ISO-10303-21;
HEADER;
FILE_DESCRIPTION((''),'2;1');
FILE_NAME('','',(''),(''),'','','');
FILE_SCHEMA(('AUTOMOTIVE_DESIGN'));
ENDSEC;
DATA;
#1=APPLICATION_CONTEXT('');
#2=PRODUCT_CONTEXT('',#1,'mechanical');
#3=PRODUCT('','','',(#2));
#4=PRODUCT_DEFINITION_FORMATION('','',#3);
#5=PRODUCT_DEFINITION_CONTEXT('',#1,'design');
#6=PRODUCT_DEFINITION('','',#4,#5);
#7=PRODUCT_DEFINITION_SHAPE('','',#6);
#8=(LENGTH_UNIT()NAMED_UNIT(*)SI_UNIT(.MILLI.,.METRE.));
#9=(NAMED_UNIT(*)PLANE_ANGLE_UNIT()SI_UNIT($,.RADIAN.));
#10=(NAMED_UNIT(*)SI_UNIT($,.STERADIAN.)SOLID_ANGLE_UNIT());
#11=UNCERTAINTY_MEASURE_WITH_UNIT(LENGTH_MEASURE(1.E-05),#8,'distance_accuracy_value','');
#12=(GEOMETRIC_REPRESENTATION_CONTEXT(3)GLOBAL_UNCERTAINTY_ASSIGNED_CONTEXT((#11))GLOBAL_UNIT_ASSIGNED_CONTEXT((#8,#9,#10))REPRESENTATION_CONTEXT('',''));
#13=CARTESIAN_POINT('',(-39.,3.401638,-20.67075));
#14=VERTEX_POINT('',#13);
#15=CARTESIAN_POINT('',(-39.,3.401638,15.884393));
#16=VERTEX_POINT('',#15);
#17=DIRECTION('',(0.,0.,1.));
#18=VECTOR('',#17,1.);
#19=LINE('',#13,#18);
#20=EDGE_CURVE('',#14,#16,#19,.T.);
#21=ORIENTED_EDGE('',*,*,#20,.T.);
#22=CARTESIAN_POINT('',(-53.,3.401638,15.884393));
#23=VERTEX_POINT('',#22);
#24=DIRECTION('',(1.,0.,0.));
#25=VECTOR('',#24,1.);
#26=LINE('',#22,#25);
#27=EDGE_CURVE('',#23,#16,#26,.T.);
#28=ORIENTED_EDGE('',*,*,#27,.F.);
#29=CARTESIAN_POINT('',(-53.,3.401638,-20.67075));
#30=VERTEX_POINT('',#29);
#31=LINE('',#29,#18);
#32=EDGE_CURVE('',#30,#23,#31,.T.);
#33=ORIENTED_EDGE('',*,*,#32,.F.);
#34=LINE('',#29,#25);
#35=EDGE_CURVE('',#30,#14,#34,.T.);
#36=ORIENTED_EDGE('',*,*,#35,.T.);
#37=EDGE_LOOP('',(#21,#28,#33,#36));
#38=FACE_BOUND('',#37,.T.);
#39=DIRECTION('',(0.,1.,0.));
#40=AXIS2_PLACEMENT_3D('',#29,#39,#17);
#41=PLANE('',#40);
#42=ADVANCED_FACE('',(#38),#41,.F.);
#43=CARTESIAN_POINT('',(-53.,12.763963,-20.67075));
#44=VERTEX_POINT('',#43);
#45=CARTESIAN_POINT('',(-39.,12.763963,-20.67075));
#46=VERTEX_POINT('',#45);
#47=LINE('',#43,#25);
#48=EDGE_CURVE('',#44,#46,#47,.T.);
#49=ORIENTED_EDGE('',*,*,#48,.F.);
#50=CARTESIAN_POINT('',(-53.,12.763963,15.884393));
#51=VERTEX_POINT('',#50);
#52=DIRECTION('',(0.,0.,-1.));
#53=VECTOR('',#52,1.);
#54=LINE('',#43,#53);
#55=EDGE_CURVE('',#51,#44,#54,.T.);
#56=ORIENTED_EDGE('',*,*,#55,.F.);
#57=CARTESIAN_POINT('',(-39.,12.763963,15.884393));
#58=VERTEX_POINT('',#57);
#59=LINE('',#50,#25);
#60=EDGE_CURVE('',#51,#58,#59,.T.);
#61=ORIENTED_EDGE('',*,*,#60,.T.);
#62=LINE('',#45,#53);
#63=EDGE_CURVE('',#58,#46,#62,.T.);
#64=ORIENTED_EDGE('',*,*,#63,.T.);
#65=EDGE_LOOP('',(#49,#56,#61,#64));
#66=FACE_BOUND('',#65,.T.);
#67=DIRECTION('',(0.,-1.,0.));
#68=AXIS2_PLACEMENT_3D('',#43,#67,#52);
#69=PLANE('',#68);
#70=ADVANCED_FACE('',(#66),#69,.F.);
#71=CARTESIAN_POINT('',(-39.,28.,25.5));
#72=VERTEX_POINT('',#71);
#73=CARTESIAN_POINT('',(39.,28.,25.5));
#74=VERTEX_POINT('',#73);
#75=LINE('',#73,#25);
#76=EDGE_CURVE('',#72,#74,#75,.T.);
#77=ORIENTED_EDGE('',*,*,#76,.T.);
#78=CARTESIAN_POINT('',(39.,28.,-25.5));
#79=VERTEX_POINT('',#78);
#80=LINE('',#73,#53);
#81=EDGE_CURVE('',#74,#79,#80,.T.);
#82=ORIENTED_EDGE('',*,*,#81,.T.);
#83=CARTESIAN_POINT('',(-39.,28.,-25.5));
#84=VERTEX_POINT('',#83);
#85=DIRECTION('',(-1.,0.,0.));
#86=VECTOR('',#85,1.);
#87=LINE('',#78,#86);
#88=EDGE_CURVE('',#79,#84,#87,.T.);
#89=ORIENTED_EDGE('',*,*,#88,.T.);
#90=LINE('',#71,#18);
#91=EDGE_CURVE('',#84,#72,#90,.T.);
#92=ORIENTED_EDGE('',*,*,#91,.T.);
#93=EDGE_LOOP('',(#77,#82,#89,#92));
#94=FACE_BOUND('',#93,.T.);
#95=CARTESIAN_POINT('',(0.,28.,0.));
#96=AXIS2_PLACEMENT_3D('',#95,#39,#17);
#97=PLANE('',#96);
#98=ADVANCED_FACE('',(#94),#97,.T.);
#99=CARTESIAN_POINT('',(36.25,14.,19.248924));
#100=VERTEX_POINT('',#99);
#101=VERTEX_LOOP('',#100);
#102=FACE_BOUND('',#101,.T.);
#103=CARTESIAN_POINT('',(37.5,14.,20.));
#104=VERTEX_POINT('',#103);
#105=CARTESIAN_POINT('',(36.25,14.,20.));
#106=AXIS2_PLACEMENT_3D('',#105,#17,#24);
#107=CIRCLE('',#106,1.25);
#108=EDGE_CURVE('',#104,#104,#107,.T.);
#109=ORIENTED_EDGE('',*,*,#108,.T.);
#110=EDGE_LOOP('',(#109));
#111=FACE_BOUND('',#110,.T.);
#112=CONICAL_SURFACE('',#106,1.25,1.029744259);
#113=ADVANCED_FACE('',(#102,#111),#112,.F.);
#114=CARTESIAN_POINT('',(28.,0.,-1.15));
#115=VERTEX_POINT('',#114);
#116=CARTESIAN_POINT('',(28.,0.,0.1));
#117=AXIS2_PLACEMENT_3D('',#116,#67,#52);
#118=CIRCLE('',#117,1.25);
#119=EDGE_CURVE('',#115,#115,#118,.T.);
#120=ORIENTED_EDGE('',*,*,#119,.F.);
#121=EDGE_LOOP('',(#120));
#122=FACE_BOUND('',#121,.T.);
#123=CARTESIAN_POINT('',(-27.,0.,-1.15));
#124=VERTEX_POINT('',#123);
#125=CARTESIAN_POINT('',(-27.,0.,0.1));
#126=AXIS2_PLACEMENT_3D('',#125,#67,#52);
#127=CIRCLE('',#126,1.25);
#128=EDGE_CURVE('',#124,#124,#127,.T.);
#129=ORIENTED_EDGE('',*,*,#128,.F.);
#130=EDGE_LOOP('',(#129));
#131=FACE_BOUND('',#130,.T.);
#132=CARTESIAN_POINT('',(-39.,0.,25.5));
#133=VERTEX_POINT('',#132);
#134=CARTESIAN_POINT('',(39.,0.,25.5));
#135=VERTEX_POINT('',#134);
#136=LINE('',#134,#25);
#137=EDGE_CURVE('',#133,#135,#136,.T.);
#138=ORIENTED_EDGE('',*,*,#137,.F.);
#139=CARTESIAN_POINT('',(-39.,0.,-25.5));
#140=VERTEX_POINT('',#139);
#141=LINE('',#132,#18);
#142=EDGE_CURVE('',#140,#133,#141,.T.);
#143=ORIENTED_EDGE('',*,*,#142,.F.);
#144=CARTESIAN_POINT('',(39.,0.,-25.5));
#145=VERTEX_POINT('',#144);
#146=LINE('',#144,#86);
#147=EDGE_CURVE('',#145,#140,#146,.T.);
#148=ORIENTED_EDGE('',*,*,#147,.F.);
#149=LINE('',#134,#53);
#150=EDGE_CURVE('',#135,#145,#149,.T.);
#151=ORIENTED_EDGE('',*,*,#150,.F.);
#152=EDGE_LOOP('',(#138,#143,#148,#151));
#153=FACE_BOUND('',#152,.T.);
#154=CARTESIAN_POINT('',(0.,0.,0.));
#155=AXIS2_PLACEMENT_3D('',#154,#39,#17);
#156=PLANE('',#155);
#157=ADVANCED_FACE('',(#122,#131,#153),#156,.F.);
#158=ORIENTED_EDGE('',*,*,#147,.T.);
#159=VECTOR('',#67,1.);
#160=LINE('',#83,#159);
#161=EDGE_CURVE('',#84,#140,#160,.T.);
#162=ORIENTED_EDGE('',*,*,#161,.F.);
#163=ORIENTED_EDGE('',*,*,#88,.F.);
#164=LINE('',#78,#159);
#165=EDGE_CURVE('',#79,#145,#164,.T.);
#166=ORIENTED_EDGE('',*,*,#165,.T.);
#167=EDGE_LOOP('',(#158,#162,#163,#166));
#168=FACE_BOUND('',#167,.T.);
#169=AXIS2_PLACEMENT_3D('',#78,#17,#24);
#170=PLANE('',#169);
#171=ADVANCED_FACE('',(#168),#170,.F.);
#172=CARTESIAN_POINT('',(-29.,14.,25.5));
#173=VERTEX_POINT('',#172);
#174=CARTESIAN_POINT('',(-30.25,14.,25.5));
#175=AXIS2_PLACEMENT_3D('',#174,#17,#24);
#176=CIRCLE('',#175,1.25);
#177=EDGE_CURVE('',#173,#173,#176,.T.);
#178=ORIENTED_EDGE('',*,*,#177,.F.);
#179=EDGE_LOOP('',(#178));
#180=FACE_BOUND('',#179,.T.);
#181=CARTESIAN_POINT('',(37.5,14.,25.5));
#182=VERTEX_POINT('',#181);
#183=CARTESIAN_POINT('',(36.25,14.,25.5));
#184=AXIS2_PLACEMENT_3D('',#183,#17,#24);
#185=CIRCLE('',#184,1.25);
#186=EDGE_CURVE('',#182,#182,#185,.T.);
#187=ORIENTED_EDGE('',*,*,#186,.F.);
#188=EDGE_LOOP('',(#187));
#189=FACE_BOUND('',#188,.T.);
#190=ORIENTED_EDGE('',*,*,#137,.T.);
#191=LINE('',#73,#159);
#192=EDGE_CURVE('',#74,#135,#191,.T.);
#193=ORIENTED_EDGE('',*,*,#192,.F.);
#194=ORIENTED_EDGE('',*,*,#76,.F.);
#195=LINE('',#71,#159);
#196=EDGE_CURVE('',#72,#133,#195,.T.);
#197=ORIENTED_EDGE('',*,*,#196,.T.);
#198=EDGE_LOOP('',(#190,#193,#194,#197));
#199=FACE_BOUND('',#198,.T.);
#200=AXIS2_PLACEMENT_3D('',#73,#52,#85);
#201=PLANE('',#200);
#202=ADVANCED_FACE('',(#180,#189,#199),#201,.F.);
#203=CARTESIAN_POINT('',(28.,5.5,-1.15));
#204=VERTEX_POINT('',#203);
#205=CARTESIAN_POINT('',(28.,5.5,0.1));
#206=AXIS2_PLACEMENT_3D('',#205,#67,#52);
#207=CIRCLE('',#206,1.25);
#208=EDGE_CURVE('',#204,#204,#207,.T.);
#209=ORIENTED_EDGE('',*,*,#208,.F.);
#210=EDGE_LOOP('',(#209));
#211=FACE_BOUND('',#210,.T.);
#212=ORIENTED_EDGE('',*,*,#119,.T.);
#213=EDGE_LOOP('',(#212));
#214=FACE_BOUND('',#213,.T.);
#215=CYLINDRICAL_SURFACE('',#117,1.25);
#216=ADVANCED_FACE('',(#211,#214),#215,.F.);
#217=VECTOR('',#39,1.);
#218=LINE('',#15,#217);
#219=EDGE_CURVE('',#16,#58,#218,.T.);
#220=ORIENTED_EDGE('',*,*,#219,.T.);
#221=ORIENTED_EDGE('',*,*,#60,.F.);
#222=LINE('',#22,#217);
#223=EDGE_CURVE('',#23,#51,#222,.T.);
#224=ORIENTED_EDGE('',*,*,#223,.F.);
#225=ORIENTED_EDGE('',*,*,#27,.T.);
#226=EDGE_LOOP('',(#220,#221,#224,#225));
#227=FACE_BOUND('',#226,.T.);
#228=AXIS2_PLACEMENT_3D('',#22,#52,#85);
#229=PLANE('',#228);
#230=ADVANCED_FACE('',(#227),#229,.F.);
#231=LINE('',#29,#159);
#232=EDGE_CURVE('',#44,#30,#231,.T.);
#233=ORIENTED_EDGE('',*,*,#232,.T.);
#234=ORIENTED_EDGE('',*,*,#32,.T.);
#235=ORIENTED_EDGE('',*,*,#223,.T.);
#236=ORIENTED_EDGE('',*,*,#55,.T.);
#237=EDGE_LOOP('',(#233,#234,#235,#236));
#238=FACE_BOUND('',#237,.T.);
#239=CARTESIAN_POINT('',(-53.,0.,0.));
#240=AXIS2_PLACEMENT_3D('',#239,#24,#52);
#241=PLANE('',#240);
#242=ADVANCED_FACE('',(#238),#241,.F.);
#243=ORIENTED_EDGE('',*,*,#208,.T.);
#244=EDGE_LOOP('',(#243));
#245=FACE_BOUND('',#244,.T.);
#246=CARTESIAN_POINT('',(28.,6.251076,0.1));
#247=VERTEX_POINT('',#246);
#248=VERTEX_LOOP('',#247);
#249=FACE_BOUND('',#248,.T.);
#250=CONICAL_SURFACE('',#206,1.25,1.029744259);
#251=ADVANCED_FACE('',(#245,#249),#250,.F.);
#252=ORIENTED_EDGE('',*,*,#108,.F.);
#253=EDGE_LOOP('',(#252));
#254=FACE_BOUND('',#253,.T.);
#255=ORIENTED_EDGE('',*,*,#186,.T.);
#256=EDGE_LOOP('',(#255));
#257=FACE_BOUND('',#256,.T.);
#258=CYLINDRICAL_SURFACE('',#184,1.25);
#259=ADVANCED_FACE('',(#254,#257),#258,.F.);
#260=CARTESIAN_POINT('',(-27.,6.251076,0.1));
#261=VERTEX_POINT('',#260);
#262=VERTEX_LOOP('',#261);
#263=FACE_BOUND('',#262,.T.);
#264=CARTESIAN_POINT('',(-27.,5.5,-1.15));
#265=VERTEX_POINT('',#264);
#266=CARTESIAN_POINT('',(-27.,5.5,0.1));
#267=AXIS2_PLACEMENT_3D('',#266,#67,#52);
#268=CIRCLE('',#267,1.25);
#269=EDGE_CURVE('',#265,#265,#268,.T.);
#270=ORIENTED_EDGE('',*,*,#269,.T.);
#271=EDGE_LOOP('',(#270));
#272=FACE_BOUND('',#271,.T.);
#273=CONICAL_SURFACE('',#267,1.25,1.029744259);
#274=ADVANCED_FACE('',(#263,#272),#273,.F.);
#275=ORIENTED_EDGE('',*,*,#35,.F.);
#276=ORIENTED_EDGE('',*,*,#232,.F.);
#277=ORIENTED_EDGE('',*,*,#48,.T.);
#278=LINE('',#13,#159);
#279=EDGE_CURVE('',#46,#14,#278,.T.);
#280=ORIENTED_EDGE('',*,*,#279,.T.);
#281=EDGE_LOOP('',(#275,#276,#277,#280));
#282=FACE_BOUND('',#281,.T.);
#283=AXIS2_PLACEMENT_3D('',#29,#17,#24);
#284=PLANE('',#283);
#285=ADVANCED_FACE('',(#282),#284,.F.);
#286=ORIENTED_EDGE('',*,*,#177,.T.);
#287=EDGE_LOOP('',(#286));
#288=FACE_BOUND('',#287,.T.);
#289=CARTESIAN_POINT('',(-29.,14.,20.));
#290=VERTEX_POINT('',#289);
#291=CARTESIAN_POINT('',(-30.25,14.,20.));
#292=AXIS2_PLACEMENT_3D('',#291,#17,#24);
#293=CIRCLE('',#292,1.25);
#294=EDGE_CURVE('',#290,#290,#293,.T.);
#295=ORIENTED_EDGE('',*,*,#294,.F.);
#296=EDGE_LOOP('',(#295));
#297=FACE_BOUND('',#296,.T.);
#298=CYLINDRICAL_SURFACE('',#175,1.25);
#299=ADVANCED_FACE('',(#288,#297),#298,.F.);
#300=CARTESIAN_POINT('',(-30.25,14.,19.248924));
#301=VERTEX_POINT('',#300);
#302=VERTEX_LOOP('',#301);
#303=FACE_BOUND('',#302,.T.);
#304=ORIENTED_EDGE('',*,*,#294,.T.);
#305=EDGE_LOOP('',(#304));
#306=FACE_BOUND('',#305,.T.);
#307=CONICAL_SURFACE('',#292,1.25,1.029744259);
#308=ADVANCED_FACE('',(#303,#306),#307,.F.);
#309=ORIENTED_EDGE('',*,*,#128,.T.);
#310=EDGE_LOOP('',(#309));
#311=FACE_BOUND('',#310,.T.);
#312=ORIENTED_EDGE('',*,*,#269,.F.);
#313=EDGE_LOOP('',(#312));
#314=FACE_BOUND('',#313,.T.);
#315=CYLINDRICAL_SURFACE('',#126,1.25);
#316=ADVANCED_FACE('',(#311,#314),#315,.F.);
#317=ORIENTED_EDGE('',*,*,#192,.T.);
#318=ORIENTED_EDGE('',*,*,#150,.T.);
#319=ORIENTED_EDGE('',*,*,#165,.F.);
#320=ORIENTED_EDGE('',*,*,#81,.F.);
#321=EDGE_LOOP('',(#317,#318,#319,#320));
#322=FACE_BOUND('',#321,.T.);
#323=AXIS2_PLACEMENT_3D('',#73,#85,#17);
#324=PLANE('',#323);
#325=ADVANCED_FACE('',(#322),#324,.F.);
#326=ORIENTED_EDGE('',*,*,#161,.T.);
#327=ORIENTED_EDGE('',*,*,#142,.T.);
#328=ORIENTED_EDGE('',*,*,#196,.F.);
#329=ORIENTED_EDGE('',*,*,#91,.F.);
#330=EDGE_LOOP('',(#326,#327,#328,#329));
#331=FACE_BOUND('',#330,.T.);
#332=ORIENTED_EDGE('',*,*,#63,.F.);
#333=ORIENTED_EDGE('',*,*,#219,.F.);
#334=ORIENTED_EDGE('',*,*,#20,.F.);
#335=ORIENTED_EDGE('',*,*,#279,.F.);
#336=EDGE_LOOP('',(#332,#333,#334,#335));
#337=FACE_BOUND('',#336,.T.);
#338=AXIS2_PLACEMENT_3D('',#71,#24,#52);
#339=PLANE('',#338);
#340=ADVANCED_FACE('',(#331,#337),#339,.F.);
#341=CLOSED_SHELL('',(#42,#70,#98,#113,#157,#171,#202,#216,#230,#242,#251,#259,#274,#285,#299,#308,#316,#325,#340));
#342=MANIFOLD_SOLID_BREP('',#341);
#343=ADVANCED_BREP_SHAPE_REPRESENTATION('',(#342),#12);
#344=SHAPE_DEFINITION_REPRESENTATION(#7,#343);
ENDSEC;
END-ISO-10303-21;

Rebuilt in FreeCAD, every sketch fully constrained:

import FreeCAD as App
import Part
import Sketcher

V = App.Vector
Q = App.Units.Quantity


def add_polygon(sketch, points):
    """Adds a closed chain of lines whose ends are joined by coincident constraints."""
    first, n = sketch.GeometryCount, len(points)
    for a, b in zip(points, points[1:] + points[:1]):
        sketch.addGeometry(Part.LineSegment(App.Vector(*a, 0), App.Vector(*b, 0)), False)
    for i in range(n):
        sketch.addConstraint(Sketcher.Constraint("Coincident", first + i, 2, first + (i + 1) % n, 1))

doc = App.newDocument("Part")
body = doc.addObject("PartDesign::Body", "Body")

# Sketch on XZ plane
sketch1 = doc.addObject("Sketcher::SketchObject", "Sketch")
body.addObject(sketch1)
sketch1.AttachmentSupport = (doc.XZ_Plane, [""])
sketch1.MapMode = "FlatFace"
add_polygon(sketch1, [(-39, -25.5), (-39, 25.5), (39, 25.5), (39, -25.5)])  # lines 0-3
sketch1.addConstraint([
    Sketcher.Constraint("Vertical", 0),
    Sketcher.Constraint("Horizontal", 1),
    Sketcher.Constraint("Vertical", 2),
    Sketcher.Constraint("Horizontal", 3),
    Sketcher.Constraint("Symmetric", 0, 2, 2, 2, -1, 1),
    Sketcher.Constraint("DistanceX", 1, 1, 1, 2, Q("78 mm")),
    Sketcher.Constraint("DistanceY", 0, 1, 0, 2, Q("51 mm")),
])
pad1 = doc.addObject("PartDesign::Pad", "Pad")
body.addObject(pad1)
pad1.Profile = sketch1
pad1.Length = 28
pad1.Reversed = True

# Sketch on XY plane
sketch2 = doc.addObject("Sketcher::SketchObject", "Sketch001")
body.addObject(sketch2)
sketch2.AttachmentSupport = (doc.XY_Plane, [""])
sketch2.MapMode = "FlatFace"
sketch2.AttachmentOffset = App.Placement(V(0, 0, 25.5), App.Rotation())
sketch2.addGeometry([
    Part.Circle(V(36.25, 14, 0), V(0, 0, 1), 1.25),
    Part.Circle(V(-30.25, 14, 0), V(0, 0, 1), 1.25),
], False)
sketch2.addConstraint([
    Sketcher.Constraint("Equal", 0, 1),
    Sketcher.Constraint("Horizontal", 0, 3, 1, 3),
    Sketcher.Constraint("Diameter", 0, Q("2.5 mm")),
    Sketcher.Constraint("DistanceY", -1, 1, 0, 3, Q("14 mm")),
    Sketcher.Constraint("DistanceX", 1, 3, 0, 3, Q("66.5 mm")),
    Sketcher.Constraint("DistanceX", -1, 1, 0, 3, Q("36.25 mm")),
])
doc.recompute()
hole = doc.addObject("PartDesign::Hole", "Hole")
body.addObject(hole)
hole.Profile = sketch2
hole.ThreadType = "None"
hole.Diameter = 2.5
hole.DepthType = "Dimension"
hole.Depth = 5.5
hole.DrillPoint = "Angled"
hole.DrillPointAngle = 118

# Sketch on XZ plane
sketch3 = doc.addObject("Sketcher::SketchObject", "Sketch002")
body.addObject(sketch3)
sketch3.AttachmentSupport = (doc.XZ_Plane, [""])
sketch3.MapMode = "FlatFace"
sketch3.addGeometry([
    Part.Circle(V(28, 0.1, 0), V(0, 0, 1), 1.25),
    Part.Circle(V(-27, 0.1, 0), V(0, 0, 1), 1.25),
], False)
sketch3.addConstraint([
    Sketcher.Constraint("Equal", 0, 1),
    Sketcher.Constraint("Horizontal", 0, 3, 1, 3),
    Sketcher.Constraint("Diameter", 0, Q("2.5 mm")),
    Sketcher.Constraint("DistanceX", -1, 1, 0, 3, Q("28 mm")),
    Sketcher.Constraint("DistanceX", 1, 3, -1, 1, Q("27 mm")),
    Sketcher.Constraint("DistanceY", -1, 1, 0, 3, Q("0.1 mm")),
])
doc.recompute()
hole2 = doc.addObject("PartDesign::Hole", "Hole001")
body.addObject(hole2)
hole2.Profile = sketch3
hole2.ThreadType = "None"
hole2.Diameter = 2.5
hole2.DepthType = "Dimension"
hole2.Depth = 5.5
hole2.DrillPoint = "Angled"
hole2.DrillPointAngle = 118

# Sketch on YZ plane
sketch4 = doc.addObject("Sketcher::SketchObject", "Sketch003")
body.addObject(sketch4)
sketch4.AttachmentSupport = (doc.YZ_Plane, [""])
sketch4.MapMode = "FlatFace"
sketch4.AttachmentOffset = App.Placement(V(0, 0, -39), App.Rotation())
add_polygon(sketch4, [(12.763963, -20.67075), (3.401638, -20.67075), (3.401638, 15.884393), (12.763963, 15.884393)])  # lines 0-3
sketch4.addConstraint([
    Sketcher.Constraint("Horizontal", 0),
    Sketcher.Constraint("Vertical", 1),
    Sketcher.Constraint("Horizontal", 2),
    Sketcher.Constraint("Vertical", 3),
    Sketcher.Constraint("DistanceX", 0, 2, 0, 1, Q("9.362325 mm")),
    Sketcher.Constraint("DistanceY", 1, 1, 1, 2, Q("36.555143 mm")),
    Sketcher.Constraint("DistanceX", -1, 1, 0, 2, Q("3.401638 mm")),
    Sketcher.Constraint("DistanceY", 0, 2, -1, 1, Q("20.67075 mm")),
])
pad2 = doc.addObject("PartDesign::Pad", "Pad001")
body.addObject(pad2)
pad2.Profile = sketch4
pad2.Length = 14
pad2.Reversed = True

doc.recompute()
